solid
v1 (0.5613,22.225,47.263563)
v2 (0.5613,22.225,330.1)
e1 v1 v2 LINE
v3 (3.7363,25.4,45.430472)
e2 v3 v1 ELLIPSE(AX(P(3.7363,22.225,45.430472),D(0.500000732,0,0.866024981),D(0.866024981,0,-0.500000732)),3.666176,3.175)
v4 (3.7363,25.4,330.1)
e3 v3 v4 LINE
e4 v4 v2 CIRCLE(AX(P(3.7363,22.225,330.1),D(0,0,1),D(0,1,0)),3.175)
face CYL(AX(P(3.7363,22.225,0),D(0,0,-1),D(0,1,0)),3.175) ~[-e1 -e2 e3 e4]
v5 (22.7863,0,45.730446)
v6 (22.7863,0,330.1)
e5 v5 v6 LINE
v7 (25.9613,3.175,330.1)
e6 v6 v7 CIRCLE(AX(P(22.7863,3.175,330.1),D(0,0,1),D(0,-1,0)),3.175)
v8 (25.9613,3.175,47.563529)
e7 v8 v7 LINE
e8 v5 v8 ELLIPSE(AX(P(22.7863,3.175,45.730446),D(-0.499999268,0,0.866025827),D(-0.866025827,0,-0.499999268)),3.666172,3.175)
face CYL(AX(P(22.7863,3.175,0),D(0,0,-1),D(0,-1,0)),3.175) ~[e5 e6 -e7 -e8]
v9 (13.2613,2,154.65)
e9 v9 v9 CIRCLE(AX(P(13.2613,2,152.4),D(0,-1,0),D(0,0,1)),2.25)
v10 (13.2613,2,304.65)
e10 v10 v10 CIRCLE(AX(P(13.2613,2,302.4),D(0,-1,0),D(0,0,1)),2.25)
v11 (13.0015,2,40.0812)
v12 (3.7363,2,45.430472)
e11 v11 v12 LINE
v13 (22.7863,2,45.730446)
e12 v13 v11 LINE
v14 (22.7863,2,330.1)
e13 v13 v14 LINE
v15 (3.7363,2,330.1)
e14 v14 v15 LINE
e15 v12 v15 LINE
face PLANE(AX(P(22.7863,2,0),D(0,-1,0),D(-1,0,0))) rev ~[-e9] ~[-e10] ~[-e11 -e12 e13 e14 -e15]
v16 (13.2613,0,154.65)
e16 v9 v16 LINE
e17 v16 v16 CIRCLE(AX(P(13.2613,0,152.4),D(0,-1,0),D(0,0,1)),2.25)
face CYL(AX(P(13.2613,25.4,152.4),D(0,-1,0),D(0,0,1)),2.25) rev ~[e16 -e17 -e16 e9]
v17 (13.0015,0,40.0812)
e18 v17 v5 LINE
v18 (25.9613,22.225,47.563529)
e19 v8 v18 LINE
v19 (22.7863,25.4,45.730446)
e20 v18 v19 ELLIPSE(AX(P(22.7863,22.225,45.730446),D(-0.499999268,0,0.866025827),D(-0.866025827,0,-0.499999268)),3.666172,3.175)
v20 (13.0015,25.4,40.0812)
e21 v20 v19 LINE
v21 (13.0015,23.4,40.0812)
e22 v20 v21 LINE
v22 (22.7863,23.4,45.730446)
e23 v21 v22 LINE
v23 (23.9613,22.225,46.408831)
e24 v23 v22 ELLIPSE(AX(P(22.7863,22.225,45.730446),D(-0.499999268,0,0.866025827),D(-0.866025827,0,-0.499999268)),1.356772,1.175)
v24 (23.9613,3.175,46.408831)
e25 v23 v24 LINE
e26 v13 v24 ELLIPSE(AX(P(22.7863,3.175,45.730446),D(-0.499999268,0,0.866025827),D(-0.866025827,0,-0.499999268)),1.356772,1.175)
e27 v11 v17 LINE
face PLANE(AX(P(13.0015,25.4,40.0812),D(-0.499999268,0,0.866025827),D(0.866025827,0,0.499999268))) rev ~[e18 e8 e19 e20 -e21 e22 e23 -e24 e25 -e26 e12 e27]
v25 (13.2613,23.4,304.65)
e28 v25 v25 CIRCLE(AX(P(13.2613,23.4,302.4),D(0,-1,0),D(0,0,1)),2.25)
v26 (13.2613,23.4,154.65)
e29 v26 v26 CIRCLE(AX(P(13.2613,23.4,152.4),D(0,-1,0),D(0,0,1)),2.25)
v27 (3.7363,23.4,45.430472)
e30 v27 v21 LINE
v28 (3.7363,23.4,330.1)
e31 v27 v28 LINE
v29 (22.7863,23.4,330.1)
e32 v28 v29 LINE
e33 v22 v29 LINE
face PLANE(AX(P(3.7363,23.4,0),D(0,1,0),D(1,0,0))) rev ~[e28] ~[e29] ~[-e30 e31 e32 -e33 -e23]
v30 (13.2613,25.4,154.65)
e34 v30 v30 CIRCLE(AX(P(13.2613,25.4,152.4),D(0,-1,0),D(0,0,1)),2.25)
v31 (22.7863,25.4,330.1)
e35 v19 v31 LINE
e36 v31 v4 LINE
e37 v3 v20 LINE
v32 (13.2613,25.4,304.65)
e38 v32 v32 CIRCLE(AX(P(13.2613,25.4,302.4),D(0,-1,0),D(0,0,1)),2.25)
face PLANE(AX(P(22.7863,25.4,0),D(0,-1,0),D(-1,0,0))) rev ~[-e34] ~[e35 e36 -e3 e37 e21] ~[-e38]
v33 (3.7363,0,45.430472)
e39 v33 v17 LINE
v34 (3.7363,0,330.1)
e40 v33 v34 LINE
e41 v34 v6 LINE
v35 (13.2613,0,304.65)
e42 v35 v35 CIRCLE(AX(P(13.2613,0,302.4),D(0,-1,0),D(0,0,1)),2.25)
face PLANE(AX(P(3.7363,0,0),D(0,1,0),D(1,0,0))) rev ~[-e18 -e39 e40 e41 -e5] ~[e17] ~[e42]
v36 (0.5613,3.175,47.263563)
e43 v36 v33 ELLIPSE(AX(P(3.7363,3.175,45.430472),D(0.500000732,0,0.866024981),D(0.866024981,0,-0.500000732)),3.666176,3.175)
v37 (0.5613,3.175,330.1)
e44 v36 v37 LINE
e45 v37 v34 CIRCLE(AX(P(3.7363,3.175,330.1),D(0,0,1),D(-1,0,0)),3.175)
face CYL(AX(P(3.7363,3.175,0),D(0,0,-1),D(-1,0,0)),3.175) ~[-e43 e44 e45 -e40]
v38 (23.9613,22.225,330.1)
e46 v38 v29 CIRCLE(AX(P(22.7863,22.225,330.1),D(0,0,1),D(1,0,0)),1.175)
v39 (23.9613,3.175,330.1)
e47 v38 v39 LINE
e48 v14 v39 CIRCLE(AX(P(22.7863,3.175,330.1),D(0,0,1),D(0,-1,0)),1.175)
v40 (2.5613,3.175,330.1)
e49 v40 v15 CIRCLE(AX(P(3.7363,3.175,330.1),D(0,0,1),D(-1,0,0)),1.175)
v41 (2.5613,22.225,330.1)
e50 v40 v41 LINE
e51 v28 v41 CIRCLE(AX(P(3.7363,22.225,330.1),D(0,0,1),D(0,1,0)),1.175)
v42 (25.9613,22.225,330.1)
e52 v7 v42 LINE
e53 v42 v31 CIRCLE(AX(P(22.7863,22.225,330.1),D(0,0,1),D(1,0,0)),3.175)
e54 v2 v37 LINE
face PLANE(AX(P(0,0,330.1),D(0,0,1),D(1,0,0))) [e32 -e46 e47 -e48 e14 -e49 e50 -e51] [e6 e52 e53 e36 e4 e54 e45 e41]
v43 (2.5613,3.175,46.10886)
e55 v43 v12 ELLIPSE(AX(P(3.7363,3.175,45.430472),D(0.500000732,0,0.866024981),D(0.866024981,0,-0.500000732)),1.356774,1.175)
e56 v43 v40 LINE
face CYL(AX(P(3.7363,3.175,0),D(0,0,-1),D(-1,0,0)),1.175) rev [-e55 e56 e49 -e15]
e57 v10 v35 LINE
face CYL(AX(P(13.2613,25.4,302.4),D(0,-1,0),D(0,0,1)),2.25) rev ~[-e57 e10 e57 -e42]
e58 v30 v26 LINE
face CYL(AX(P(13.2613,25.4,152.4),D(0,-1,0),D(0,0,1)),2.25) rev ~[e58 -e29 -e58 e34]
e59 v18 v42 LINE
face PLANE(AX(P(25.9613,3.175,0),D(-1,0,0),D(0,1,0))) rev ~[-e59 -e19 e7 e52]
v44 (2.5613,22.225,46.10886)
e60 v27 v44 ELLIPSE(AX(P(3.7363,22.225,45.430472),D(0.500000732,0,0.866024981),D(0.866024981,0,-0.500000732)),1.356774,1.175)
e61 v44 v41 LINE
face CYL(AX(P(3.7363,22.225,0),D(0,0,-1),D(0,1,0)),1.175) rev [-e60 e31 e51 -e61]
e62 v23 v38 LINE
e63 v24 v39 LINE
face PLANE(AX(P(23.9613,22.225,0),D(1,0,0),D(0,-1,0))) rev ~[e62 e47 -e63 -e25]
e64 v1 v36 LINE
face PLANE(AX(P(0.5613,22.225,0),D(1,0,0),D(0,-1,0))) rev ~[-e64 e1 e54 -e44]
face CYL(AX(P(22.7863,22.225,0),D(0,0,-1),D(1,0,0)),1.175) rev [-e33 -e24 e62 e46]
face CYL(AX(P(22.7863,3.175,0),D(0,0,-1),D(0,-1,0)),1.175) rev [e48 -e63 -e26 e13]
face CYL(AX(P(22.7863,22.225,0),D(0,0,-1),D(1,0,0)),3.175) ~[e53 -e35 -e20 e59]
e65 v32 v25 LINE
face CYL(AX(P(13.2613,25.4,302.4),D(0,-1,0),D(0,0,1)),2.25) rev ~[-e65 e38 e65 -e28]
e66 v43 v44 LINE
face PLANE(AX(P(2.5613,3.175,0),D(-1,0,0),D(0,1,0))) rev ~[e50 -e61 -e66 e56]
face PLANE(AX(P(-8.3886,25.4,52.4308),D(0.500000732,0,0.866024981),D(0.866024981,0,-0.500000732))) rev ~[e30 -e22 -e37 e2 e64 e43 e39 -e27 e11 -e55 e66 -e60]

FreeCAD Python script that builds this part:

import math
import FreeCAD as App
import Part
import Sketcher

V = App.Vector
Q = App.Units.Quantity

doc = App.newDocument("Part")
params = doc.addObject("Spreadsheet::Sheet", "Params")
for row, (alias, value) in enumerate([
    ("sketch1_radius", "0.125 in"),
    ("pad1_length", "330.1 mm"),
    ("sketch2_diameter", "0.25 in"),
    ("hole_diameter", "0.25 in"),
    ("hole2_diameter", "4.5 mm"),
    ("pocket1_length", "2 in"),
], start=1):
    params.set(f"A{row}", alias)
    params.set(f"B{row}", "=" + value)
    params.setAlias(f"B{row}", alias)

body = doc.addObject("PartDesign::Body", "Body")

sketch1 = doc.addObject("Sketcher::SketchObject", "Sketch")
body.addObject(sketch1)
sketch1.AttachmentSupport = (doc.XY_Plane, [""])
sketch1.MapMode = "FlatFace"
sketch1.addGeometry([
    Part.ArcOfCircle(Part.Circle(V(3.7363, 3.175, 0), V(0, 0, 1), 3.175), math.radians(180), math.radians(270)),
    Part.LineSegment(V(3.7363, 0, 0), V(22.7863, 0, 0)),
    Part.ArcOfCircle(Part.Circle(V(22.7863, 3.175, 0), V(0, 0, 1), 3.175), math.radians(-90), math.radians(0)),
    Part.LineSegment(V(25.9613, 3.175, 0), V(25.9613, 22.225, 0)),
    Part.ArcOfCircle(Part.Circle(V(22.7863, 22.225, 0), V(0, 0, 1), 3.175), math.radians(0), math.radians(90)),
    Part.LineSegment(V(22.7863, 25.4, 0), V(3.7363, 25.4, 0)),
    Part.ArcOfCircle(Part.Circle(V(3.7363, 22.225, 0), V(0, 0, 1), 3.175), math.radians(90), math.radians(180)),
    Part.LineSegment(V(0.5613, 22.225, 0), V(0.5613, 3.175, 0)),
    Part.ArcOfCircle(Part.Circle(V(3.7363, 22.225, 0), V(0, 0, 1), 1.175), math.radians(90), math.radians(180)),
    Part.LineSegment(V(3.7363, 23.4, 0), V(22.7863, 23.4, 0)),
    Part.ArcOfCircle(Part.Circle(V(22.7863, 22.225, 0), V(0, 0, 1), 1.175), math.radians(0), math.radians(90)),
    Part.LineSegment(V(23.9613, 22.225, 0), V(23.9613, 3.175, 0)),
    Part.ArcOfCircle(Part.Circle(V(22.7863, 3.175, 0), V(0, 0, 1), 1.175), math.radians(-90), math.radians(0)),
    Part.LineSegment(V(22.7863, 2, 0), V(3.7363, 2, 0)),
    Part.ArcOfCircle(Part.Circle(V(3.7363, 3.175, 0), V(0, 0, 1), 1.175), math.radians(180), math.radians(270)),
    Part.LineSegment(V(2.5613, 3.175, 0), V(2.5613, 22.225, 0)),
], False)
sketch1.addConstraint([
    Sketcher.Constraint("Tangent", 0, 2, 1, 1),
    Sketcher.Constraint("Tangent", 1, 2, 2, 1),
    Sketcher.Constraint("Tangent", 2, 2, 3, 1),
    Sketcher.Constraint("Tangent", 3, 2, 4, 1),
    Sketcher.Constraint("Tangent", 4, 2, 5, 1),
    Sketcher.Constraint("Tangent", 5, 2, 6, 1),
    Sketcher.Constraint("Tangent", 6, 2, 7, 1),
    Sketcher.Constraint("Tangent", 7, 2, 0, 1),
    Sketcher.Constraint("Tangent", 8, 1, 9, 1),
    Sketcher.Constraint("Tangent", 9, 2, 10, 2),
    Sketcher.Constraint("Tangent", 10, 1, 11, 1),
    Sketcher.Constraint("Tangent", 11, 2, 12, 2),
    Sketcher.Constraint("Tangent", 12, 1, 13, 1),
    Sketcher.Constraint("Tangent", 13, 2, 14, 2),
    Sketcher.Constraint("Tangent", 14, 1, 15, 1),
    Sketcher.Constraint("Tangent", 15, 2, 8, 2),
    Sketcher.Constraint("Horizontal", 1),
    Sketcher.Constraint("Vertical", 3),
    Sketcher.Constraint("Horizontal", 5),
    Sketcher.Constraint("Vertical", 7),
    Sketcher.Constraint("Horizontal", 9),
    Sketcher.Constraint("Vertical", 11),
    Sketcher.Constraint("Horizontal", 13),
    Sketcher.Constraint("Vertical", 15),
    Sketcher.Constraint("Coincident", 8, 3, 6, 3),
    Sketcher.Constraint("Coincident", 10, 3, 4, 3),
    Sketcher.Constraint("Coincident", 12, 3, 2, 3),
    Sketcher.Constraint("Equal", 0, 2),
    Sketcher.Constraint("Equal", 2, 4),
    Sketcher.Constraint("Equal", 4, 6),
    Sketcher.Constraint("Equal", 12, 14),
    Sketcher.Constraint("PointOnObject", 0, 2, -1),
    Sketcher.Constraint("Equal", 13, 3),
    Sketcher.Constraint("DistanceY", -1, 1, 4, 2, Q("1 in")),
    Sketcher.Constraint("Radius", 0, Q("0.125 in")),
    Sketcher.Constraint("DistanceY", -1, 1, 12, 1, 2.0),
    Sketcher.Constraint("DistanceX", -1, 1, 0, 3, Q("0.1471 in")),
])
sketch1.setExpression("Constraints[34]", "Params.sketch1_radius")
pad1 = doc.addObject("PartDesign::Pad", "Pad")
body.addObject(pad1)
pad1.Profile = sketch1
pad1.setExpression("Length", "Params.pad1_length")

sketch2 = doc.addObject("Sketcher::SketchObject", "Sketch001")
body.addObject(sketch2)
sketch2.AttachmentSupport = (doc.XZ_Plane, [""])
sketch2.MapMode = "FlatFace"
sketch2.AttachmentOffset = App.Placement(V(0, 0, -1 * 25.4), App.Rotation())
sketch2.addGeometry(Part.Circle(V(13.2613, 25.4, 0), V(0, 0, 1), 3.175), False)
sketch2.addConstraint([
    Sketcher.Constraint("Diameter", 0, Q("0.25 in")),
    Sketcher.Constraint("DistanceY", -1, 1, 0, 3, Q("1 in")),
    Sketcher.Constraint("DistanceX", -1, 1, 0, 3, Q("0.5221 in")),
])
sketch2.setExpression("Constraints[0]", "Params.sketch2_diameter")
doc.recompute()
hole = doc.addObject("PartDesign::Hole", "Hole")
body.addObject(hole)
hole.Profile = sketch2
hole.ThreadType = "None"
hole.setExpression("Diameter", "Params.hole_diameter")
hole.DepthType = "ThroughAll"
hole.Reversed = True

sketch3 = doc.addObject("Sketcher::SketchObject", "Sketch002")
body.addObject(sketch3)
sketch3.AttachmentSupport = (doc.XZ_Plane, [""])
sketch3.MapMode = "FlatFace"
sketch3.AttachmentOffset = App.Placement(V(0, 0, -1 * 25.4), App.Rotation())
sketch3.addGeometry([
    Part.Circle(V(13.2613, 152.4, 0), V(0, 0, 1), 2.25),
    Part.Circle(V(13.2613, 302.4, 0), V(0, 0, 1), 2.25),
], False)
sketch3.addConstraint([
    Sketcher.Constraint("Equal", 0, 1),
    Sketcher.Constraint("Vertical", 0, 3, 1, 3),
    Sketcher.Constraint("DistanceY", -1, 1, 0, 3, Q("6 in")),
    Sketcher.Constraint("Diameter", 0, 4.5),
    Sketcher.Constraint("DistanceX", -1, 1, 0, 3, Q("0.5221 in")),
    Sketcher.Constraint("DistanceY", -1, 1, 1, 3, Q("11.9055 in")),
])
doc.recompute()
hole2 = doc.addObject("PartDesign::Hole", "Hole001")
body.addObject(hole2)
hole2.Profile = sketch3
hole2.ThreadType = "None"
hole2.setExpression("Diameter", "Params.hole2_diameter")
hole2.DepthType = "ThroughAll"
hole2.Reversed = True

sketch4 = doc.addObject("Sketcher::SketchObject", "Sketch003")
body.addObject(sketch4)
sketch4.AttachmentSupport = (doc.XZ_Plane, [""])
sketch4.MapMode = "FlatFace"
sketch4.AttachmentOffset = App.Placement(V(0, 0, -1 * 25.4), App.Rotation())
sketch4.addGeometry([
    Part.LineSegment(V(-8.3886, -11.2848, 0), V(-8.3886, 52.4308, 0)),
    Part.LineSegment(V(-8.3886, 52.4308, 0), V(13.001498, 40.081197, 0)),
    Part.LineSegment(V(13.0015, 40.0812, 0), V(35.6055, 53.1316, 0)),
    Part.LineSegment(V(35.6055, 53.1316, 0), V(35.6055, -11.2848, 0)),
    Part.LineSegment(V(35.6055, -11.2848, 0), V(-8.3886, -11.2848, 0)),
], False)
sketch4.addConstraint([
    Sketcher.Constraint("Coincident", 0, 2, 1, 1),
    Sketcher.Constraint("Coincident", 1, 2, 2, 1),
    Sketcher.Constraint("Coincident", 2, 2, 3, 1),
    Sketcher.Constraint("Coincident", 3, 2, 4, 1),
    Sketcher.Constraint("Coincident", 4, 2, 0, 1),
    Sketcher.Constraint("Vertical", 0),
    Sketcher.Constraint("Vertical", 3),
    Sketcher.Constraint("Horizontal", 4),
    Sketcher.Constraint("Angle", 1, Q("-30 deg")),
    Sketcher.Constraint("Angle", 2, Q("30 deg")),
    Sketcher.Constraint("DistanceY", 0, 1, 0, 2, Q("2.5085 in")),
    Sketcher.Constraint("DistanceY", -1, 1, 1, 2, Q("1.578 in")),
    Sketcher.Constraint("Distance", 1, Q("0.9724 in")),
    Sketcher.Constraint("Distance", 2, Q("1.0276 in")),
    Sketcher.Constraint("DistanceX", -1, 1, 2, 2, Q("1.4018 in")),
])
pocket1 = doc.addObject("PartDesign::Pocket", "Pocket")
body.addObject(pocket1)
pocket1.Profile = sketch4
pocket1.setExpression("Length", "Params.pocket1_length")
pocket1.Reversed = True

doc.recompute()
